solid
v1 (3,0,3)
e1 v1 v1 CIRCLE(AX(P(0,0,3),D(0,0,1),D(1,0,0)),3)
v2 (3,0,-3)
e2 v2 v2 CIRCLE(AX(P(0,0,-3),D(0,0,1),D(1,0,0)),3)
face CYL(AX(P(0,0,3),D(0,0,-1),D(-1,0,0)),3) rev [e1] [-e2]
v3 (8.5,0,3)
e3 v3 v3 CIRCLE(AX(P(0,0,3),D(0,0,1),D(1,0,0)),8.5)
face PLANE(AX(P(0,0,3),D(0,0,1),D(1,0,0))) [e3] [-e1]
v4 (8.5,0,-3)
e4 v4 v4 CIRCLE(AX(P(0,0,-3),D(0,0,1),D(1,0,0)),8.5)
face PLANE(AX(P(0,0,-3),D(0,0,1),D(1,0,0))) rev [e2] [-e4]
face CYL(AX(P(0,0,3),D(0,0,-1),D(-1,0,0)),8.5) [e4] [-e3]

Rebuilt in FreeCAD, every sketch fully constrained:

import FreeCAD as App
import Part
import Sketcher

V = App.Vector

doc = App.newDocument("Part")
params = doc.addObject("Spreadsheet::Sheet", "Params")
for row, (alias, value) in enumerate([
    ("sketch1_diameter", "17 mm"),
    ("sketch1_diameter2", "6 mm"),
    ("pad1_length", "6 mm"),
], start=1):
    params.set(f"A{row}", alias)
    params.set(f"B{row}", "=" + value)
    params.setAlias(f"B{row}", alias)

body = doc.addObject("PartDesign::Body", "Body")

# Sketch on XY plane
sketch1 = body.newObject("Sketcher::SketchObject", "Sketch")
sketch1.AttachmentSupport = (doc.getObject("XY_Plane"), [""])
sketch1.MapMode = "FlatFace"
sketch1.addGeometry([
    Part.Circle(V(0, 0, 0), V(0, 0, 1), 8.5),
    Part.Circle(V(0, 0, 0), V(0, 0, 1), 3),
], False)
sketch1.addConstraint([
    Sketcher.Constraint("Coincident", 0, 3, -1, 1),
    Sketcher.Constraint("Coincident", 1, 3, -1, 1),
    Sketcher.Constraint("Diameter", 0, 17.0),
    Sketcher.Constraint("Diameter", 1, 6.0),
])
sketch1.setExpression("Constraints[2]", "Params.sketch1_diameter")
sketch1.setExpression("Constraints[3]", "Params.sketch1_diameter2")
pad1 = body.newObject("PartDesign::Pad", "Pad")
pad1.Profile = sketch1
pad1.setExpression("Length", "Params.pad1_length")
pad1.Midplane = True

doc.recompute()
